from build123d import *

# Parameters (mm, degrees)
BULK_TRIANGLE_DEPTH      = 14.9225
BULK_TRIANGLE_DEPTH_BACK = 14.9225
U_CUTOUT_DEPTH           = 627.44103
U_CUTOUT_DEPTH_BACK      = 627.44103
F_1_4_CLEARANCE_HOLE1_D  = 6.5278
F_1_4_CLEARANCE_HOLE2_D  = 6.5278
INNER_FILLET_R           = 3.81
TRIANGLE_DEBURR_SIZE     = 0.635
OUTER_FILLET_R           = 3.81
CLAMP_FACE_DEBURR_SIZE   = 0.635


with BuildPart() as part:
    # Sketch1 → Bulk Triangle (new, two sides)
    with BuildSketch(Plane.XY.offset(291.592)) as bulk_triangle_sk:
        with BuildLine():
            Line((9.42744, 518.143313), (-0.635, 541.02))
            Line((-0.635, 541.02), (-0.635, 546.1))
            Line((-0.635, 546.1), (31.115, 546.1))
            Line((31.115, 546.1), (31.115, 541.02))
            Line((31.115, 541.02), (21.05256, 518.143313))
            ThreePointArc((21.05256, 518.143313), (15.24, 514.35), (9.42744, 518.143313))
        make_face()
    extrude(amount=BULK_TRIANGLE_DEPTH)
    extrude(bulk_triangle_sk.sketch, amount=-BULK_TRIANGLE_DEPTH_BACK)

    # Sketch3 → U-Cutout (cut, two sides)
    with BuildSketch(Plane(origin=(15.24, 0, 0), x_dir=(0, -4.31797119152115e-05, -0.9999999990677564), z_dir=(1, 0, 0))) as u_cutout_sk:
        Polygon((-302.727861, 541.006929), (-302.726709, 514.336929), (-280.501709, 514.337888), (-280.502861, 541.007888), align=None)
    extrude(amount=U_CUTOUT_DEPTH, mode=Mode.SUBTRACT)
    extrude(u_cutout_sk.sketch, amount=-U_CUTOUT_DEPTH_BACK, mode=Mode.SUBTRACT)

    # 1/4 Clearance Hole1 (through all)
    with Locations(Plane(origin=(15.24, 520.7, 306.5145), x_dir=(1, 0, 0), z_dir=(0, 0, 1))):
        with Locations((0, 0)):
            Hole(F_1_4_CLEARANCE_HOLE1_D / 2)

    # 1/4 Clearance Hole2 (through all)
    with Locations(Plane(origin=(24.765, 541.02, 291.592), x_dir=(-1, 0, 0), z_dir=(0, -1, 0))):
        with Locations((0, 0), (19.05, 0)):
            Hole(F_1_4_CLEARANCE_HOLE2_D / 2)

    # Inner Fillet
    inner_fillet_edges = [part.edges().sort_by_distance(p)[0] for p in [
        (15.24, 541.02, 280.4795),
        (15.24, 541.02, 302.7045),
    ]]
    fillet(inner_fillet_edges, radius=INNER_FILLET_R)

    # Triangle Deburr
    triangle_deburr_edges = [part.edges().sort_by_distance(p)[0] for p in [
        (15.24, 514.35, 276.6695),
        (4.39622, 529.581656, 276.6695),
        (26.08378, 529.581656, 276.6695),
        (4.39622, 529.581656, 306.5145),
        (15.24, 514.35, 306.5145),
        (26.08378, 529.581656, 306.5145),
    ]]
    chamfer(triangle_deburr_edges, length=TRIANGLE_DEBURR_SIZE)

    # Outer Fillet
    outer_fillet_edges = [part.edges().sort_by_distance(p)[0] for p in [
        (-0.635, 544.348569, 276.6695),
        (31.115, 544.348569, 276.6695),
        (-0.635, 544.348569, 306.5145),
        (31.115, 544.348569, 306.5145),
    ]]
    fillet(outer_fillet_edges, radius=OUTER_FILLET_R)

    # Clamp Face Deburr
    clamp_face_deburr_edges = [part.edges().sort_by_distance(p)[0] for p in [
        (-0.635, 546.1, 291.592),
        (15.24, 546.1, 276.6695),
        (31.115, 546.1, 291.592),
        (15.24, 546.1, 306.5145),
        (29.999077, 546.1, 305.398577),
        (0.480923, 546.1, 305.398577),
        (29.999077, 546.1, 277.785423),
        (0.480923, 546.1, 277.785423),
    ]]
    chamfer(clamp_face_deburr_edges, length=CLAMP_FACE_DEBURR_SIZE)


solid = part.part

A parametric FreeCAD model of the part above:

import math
import FreeCAD as App
import Part
import Sketcher

V = App.Vector
Q = App.Units.Quantity


def edges_at(feature, points):
    """Names of the edges that pass closest to the given points."""
    edges = feature.Shape.Edges
    near = lambda p: min(range(len(edges)), key=lambda i: edges[i].distToShape(Part.Vertex(*p))[0])
    return sorted({f"Edge{near(p) + 1}" for p in points})

doc = App.newDocument("Part")
body = doc.addObject("PartDesign::Body", "Body")

# Sketch on XY plane
sketch1 = doc.addObject("Sketcher::SketchObject", "Sketch")
body.addObject(sketch1)
sketch1.AttachmentSupport = (doc.XY_Plane, [""])
sketch1.MapMode = "FlatFace"
sketch1.AttachmentOffset = App.Placement(V(0, 0, 11.48 * 25.4), App.Rotation())
sketch1.addGeometry([
    Part.LineSegment(V(-1, 541, 0), V(9, 518, 0)),  # 0
    Part.ArcOfCircle(Part.Circle(V(15, 521, 0), V(0, 0, 1), 6), math.radians(-156), math.radians(-24)),  # 1
    Part.LineSegment(V(21, 518, 0), V(31, 541, 0)),  # 2
    Part.LineSegment(V(31, 541, 0), V(31, 546, 0)),  # 3
    Part.LineSegment(V(31, 546, 0), V(-1, 546, 0)),  # 4
    Part.LineSegment(V(-1, 546, 0), V(-1, 541, 0)),  # 5
], False)
sketch1.addConstraint([
    Sketcher.Constraint("Tangent", 0, 2, 1, 1),
    Sketcher.Constraint("Tangent", 1, 2, 2, 1),
    Sketcher.Constraint("Coincident", 2, 2, 3, 1),
    Sketcher.Constraint("Coincident", 3, 2, 4, 1),
    Sketcher.Constraint("Coincident", 4, 2, 5, 1),
    Sketcher.Constraint("Coincident", 5, 2, 0, 1),
    Sketcher.Constraint("Vertical", 3),
    Sketcher.Constraint("Horizontal", 4),
    Sketcher.Constraint("Vertical", 5),
    Sketcher.Constraint("Horizontal", 0, 2, 1, 2),
    Sketcher.Constraint("Horizontal", 2, 2, 5, 2),
    Sketcher.Constraint("Radius", 1, Q("0.25 in")),
    Sketcher.Constraint("DistanceY", 3, 1, 3, 2, Q("0.2 in")),
    Sketcher.Constraint("DistanceY", 1, 3, 3, 2, Q("1 in")),
    Sketcher.Constraint("DistanceX", 4, 2, 4, 1, Q("1.25 in")),
    Sketcher.Constraint("DistanceX", -1, 1, 1, 3, Q("0.6 in")),
    Sketcher.Constraint("DistanceY", -1, 1, 1, 3, Q("20.5 in")),
])
pad1 = doc.addObject("PartDesign::Pad", "Pad")
body.addObject(pad1)
pad1.Profile = sketch1
pad1.Type = "TwoLengths"
pad1.Length = Q("0.5875 in")
pad1.Length2 = Q("0.5875 in")

# Sketch on YZ plane
sketch2 = doc.addObject("Sketcher::SketchObject", "Sketch001")
body.addObject(sketch2)
sketch2.AttachmentSupport = (doc.YZ_Plane, [""])
sketch2.MapMode = "FlatFace"
sketch2.AttachmentOffset = App.Placement(V(0, 0, 0.6 * 25.4), App.Rotation())
sketch2.addGeometry([
    Part.LineSegment(V(541, 303, 0), V(514, 303, 0)),
    Part.LineSegment(V(514, 303, 0), V(514, 280, 0)),
    Part.LineSegment(V(514, 280, 0), V(541, 280, 0)),
    Part.LineSegment(V(541, 280, 0), V(541, 303, 0)),
], False)
sketch2.addConstraint([
    Sketcher.Constraint("Coincident", 0, 2, 1, 1),
    Sketcher.Constraint("Coincident", 1, 2, 2, 1),
    Sketcher.Constraint("Coincident", 2, 2, 3, 1),
    Sketcher.Constraint("Coincident", 3, 2, 0, 1),
    Sketcher.Constraint("Horizontal", 0),
    Sketcher.Constraint("Vertical", 1),
    Sketcher.Constraint("Horizontal", 2),
    Sketcher.Constraint("Vertical", 3),
    Sketcher.Constraint("DistanceX", 0, 2, 0, 1, Q("1.05 in")),
    Sketcher.Constraint("DistanceX", -1, 1, 2, 2, Q("21.3 in")),
    Sketcher.Constraint("DistanceY", 1, 2, 1, 1, Q("0.875 in")),
    Sketcher.Constraint("DistanceY", -1, 1, 0, 2, Q("11.9175 in")),
])
pocket1 = doc.addObject("PartDesign::Pocket", "Pocket")
body.addObject(pocket1)
pocket1.Profile = sketch2
pocket1.Type = "ThroughAll"
pocket1.Midplane = True

# Sketch on XY plane
sketch3 = doc.addObject("Sketcher::SketchObject", "Sketch002")
body.addObject(sketch3)
sketch3.AttachmentSupport = (doc.XY_Plane, [""])
sketch3.MapMode = "FlatFace"
sketch3.AttachmentOffset = App.Placement(V(0, 0, 12.0675 * 25.4), App.Rotation())
sketch3.addGeometry(Part.Circle(V(15.2, 520.7, 0), V(0, 0, 1), 3.3), False)
sketch3.addConstraint([
    Sketcher.Constraint("Diameter", 0, Q("0.257 in")),
    Sketcher.Constraint("DistanceX", -1, 1, 0, 3, Q("0.6 in")),
    Sketcher.Constraint("DistanceY", -1, 1, 0, 3, Q("20.5 in")),
])
doc.recompute()
hole = doc.addObject("PartDesign::Hole", "Hole")
body.addObject(hole)
hole.Profile = sketch3
hole.ThreadType = "None"
hole.Diameter = Q("0.257 in")
hole.DepthType = "ThroughAll"

# Sketch on XZ plane
sketch4 = doc.addObject("Sketcher::SketchObject", "Sketch003")
body.addObject(sketch4)
sketch4.AttachmentSupport = (doc.XZ_Plane, [""])
sketch4.MapMode = "FlatFace"
sketch4.AttachmentOffset = App.Placement(V(0, 0, -21.3 * 25.4), App.Rotation())
sketch4.addGeometry([
    Part.Circle(V(24.8, 291.6, 0), V(0, 0, 1), 3.3),
    Part.Circle(V(5.7, 291.6, 0), V(0, 0, 1), 3.3),
], False)
sketch4.addConstraint([
    Sketcher.Constraint("Equal", 0, 1),
    Sketcher.Constraint("Horizontal", 0, 3, 1, 3),
    Sketcher.Constraint("Diameter", 0, Q("0.257 in")),
    Sketcher.Constraint("DistanceY", -1, 1, 0, 3, Q("11.48 in")),
    Sketcher.Constraint("DistanceX", 1, 3, 0, 3, Q("0.75 in")),
    Sketcher.Constraint("DistanceX", -1, 1, 0, 3, Q("0.975 in")),
])
doc.recompute()
hole2 = doc.addObject("PartDesign::Hole", "Hole001")
body.addObject(hole2)
hole2.Profile = sketch4
hole2.ThreadType = "None"
hole2.Diameter = Q("0.257 in")
hole2.DepthType = "ThroughAll"
doc.recompute()

fillet = doc.addObject("PartDesign::Fillet", "Fillet")
body.addObject(fillet)
fillet.Base = (hole2, edges_at(hole2, [(15.24, 541.02, 280.48), (15.24, 541.02, 302.705)]))
fillet.Radius = Q("0.15 in")
doc.recompute()

chamfer = doc.addObject("PartDesign::Chamfer", "Chamfer")
body.addObject(chamfer)
chamfer.Base = (fillet, edges_at(fillet, [
    (15.24, 514.35, 276.67),
    (4.396, 529.582, 276.67),
    (26.084, 529.582, 276.67),
    (4.396, 529.582, 306.514),
    (15.24, 514.35, 306.514),
    (26.084, 529.582, 306.514),
]))
chamfer.Size = Q("0.025 in")
doc.recompute()

fillet2 = doc.addObject("PartDesign::Fillet", "Fillet001")
body.addObject(fillet2)
fillet2.Base = (chamfer, edges_at(chamfer, [
    (-0.635, 544.349, 276.67),
    (31.115, 544.349, 276.67),
    (-0.635, 544.349, 306.514),
    (31.115, 544.349, 306.514),
]))
fillet2.Radius = Q("0.15 in")
doc.recompute()

chamfer2 = doc.addObject("PartDesign::Chamfer", "Chamfer001")
body.addObject(chamfer2)
chamfer2.Base = (fillet2, edges_at(fillet2, [
    (-0.635, 546.1, 291.592),
    (15.24, 546.1, 276.67),
    (31.115, 546.1, 291.592),
    (15.24, 546.1, 306.514),
    (29.999, 546.1, 305.399),
    (0.481, 546.1, 305.399),
    (29.999, 546.1, 277.785),
    (0.481, 546.1, 277.785),
]))
chamfer2.Size = Q("0.025 in")

doc.recompute()
